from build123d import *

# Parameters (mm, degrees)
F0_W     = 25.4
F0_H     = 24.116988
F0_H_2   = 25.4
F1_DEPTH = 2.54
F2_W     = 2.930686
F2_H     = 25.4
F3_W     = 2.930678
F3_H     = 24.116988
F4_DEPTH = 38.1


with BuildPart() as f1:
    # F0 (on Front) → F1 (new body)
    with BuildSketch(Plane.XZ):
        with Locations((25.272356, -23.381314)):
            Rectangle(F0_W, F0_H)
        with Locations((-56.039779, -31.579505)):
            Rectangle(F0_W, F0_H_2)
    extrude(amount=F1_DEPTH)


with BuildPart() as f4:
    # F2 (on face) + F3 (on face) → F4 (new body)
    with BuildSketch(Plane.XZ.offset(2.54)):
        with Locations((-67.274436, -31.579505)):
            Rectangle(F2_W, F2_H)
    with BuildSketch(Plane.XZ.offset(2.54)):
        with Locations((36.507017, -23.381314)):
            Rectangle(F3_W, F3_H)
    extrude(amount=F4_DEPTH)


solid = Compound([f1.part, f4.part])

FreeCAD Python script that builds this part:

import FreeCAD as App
import Part
import Sketcher

V = App.Vector
Q = App.Units.Quantity

doc = App.newDocument("Part")
body = doc.addObject("PartDesign::Body", "Body")
body.AllowCompound = True

# Sketch on XZ plane
sketch1 = body.newObject("Sketcher::SketchObject", "Sketch")
sketch1.AttachmentSupport = (doc.getObject("XZ_Plane"), [""])
sketch1.MapMode = "FlatFace"
sketch1.addGeometry([
    Part.LineSegment(V(13, -11, 0), V(13, -35, 0)),  # 0
    Part.LineSegment(V(13, -35, 0), V(38, -35, 0)),  # 1
    Part.LineSegment(V(38, -35, 0), V(38, -11, 0)),  # 2
    Part.LineSegment(V(38, -11, 0), V(13, -11, 0)),  # 3
    Part.LineSegment(V(-69, -19, 0), V(-69, -44, 0)),  # 4
    Part.LineSegment(V(-69, -44, 0), V(-43, -44, 0)),  # 5
    Part.LineSegment(V(-43, -44, 0), V(-43, -19, 0)),  # 6
    Part.LineSegment(V(-43, -19, 0), V(-69, -19, 0)),  # 7
], False)
sketch1.addConstraint([
    Sketcher.Constraint("Coincident", 0, 2, 1, 1),
    Sketcher.Constraint("Coincident", 1, 2, 2, 1),
    Sketcher.Constraint("Coincident", 2, 2, 3, 1),
    Sketcher.Constraint("Coincident", 3, 2, 0, 1),
    Sketcher.Constraint("Coincident", 4, 2, 5, 1),
    Sketcher.Constraint("Coincident", 5, 2, 6, 1),
    Sketcher.Constraint("Coincident", 6, 2, 7, 1),
    Sketcher.Constraint("Coincident", 7, 2, 4, 1),
    Sketcher.Constraint("Vertical", 0),
    Sketcher.Constraint("Horizontal", 1),
    Sketcher.Constraint("Vertical", 2),
    Sketcher.Constraint("Horizontal", 3),
    Sketcher.Constraint("Vertical", 4),
    Sketcher.Constraint("Horizontal", 5),
    Sketcher.Constraint("Vertical", 6),
    Sketcher.Constraint("Horizontal", 7),
    Sketcher.Constraint("Equal", 3, 5),
    Sketcher.Constraint("Equal", 7, 4),
    Sketcher.Constraint("DistanceX", 1, 1, 1, 2, Q("1 in")),
    Sketcher.Constraint("DistanceY", 0, 2, 0, 1, Q("24.116988 mm")),
    Sketcher.Constraint("DistanceY", 2, 2, -1, 1, Q("11.32282 mm")),
    Sketcher.Constraint("DistanceX", 4, 2, -1, 1, Q("68.739779 mm")),
    Sketcher.Constraint("DistanceX", -1, 1, 0, 2, Q("12.572356 mm")),
    Sketcher.Constraint("DistanceY", 4, 2, -1, 1, Q("44.279505 mm")),
])
pad1 = body.newObject("PartDesign::Pad", "Pad")
pad1.Profile = sketch1
pad1.Length = Q("0.1 in")
body2 = doc.addObject("PartDesign::Body", "Body001")
body2.AllowCompound = True

# Sketch on XZ plane
sketch2 = body2.newObject("Sketcher::SketchObject", "Sketch001")
sketch2.AttachmentSupport = (doc.getObject("XZ_Plane001"), [""])
sketch2.MapMode = "FlatFace"
sketch2.AttachmentOffset = App.Placement(V(0, 0, 0.1 * 25.4), App.Rotation())
sketch2.addGeometry([
    Part.LineSegment(V(-68.7, -18.9, 0), V(-68.7, -44.3, 0)),  # 0
    Part.LineSegment(V(-68.7, -44.3, 0), V(-65.8, -44.3, 0)),  # 1
    Part.LineSegment(V(-65.8, -44.3, 0), V(-65.8, -18.9, 0)),  # 2
    Part.LineSegment(V(-65.8, -18.9, 0), V(-68.7, -18.9, 0)),  # 3
    Part.LineSegment(V(35, -11.3, 0), V(35, -35.4, 0)),  # 4
    Part.LineSegment(V(35, -35.4, 0), V(38, -35.4, 0)),  # 5
    Part.LineSegment(V(38, -35.4, 0), V(38, -11.3, 0)),  # 6
    Part.LineSegment(V(38, -11.3, 0), V(35, -11.3, 0)),  # 7
], False)
sketch2.addConstraint([
    Sketcher.Constraint("Coincident", 0, 2, 1, 1),
    Sketcher.Constraint("Coincident", 1, 2, 2, 1),
    Sketcher.Constraint("Coincident", 2, 2, 3, 1),
    Sketcher.Constraint("Coincident", 3, 2, 0, 1),
    Sketcher.Constraint("Coincident", 4, 2, 5, 1),
    Sketcher.Constraint("Coincident", 5, 2, 6, 1),
    Sketcher.Constraint("Coincident", 6, 2, 7, 1),
    Sketcher.Constraint("Coincident", 7, 2, 4, 1),
    Sketcher.Constraint("Vertical", 0),
    Sketcher.Constraint("Horizontal", 1),
    Sketcher.Constraint("Vertical", 2),
    Sketcher.Constraint("Horizontal", 3),
    Sketcher.Constraint("Vertical", 4),
    Sketcher.Constraint("Horizontal", 5),
    Sketcher.Constraint("Vertical", 6),
    Sketcher.Constraint("Horizontal", 7),
    Sketcher.Constraint("DistanceY", 0, 2, 0, 1, Q("1 in")),
    Sketcher.Constraint("DistanceX", 5, 1, 5, 2, Q("2.930678 mm")),
    Sketcher.Constraint("DistanceX", 1, 1, 1, 2, Q("2.930686 mm")),
    Sketcher.Constraint("DistanceY", 4, 2, 4, 1, Q("24.116988 mm")),
    Sketcher.Constraint("DistanceX", 0, 2, -1, 1, Q("68.739779 mm")),
    Sketcher.Constraint("DistanceY", 6, 2, -1, 1, Q("11.32282 mm")),
    Sketcher.Constraint("DistanceX", 1, 2, 4, 2, Q("100.850771 mm")),
    Sketcher.Constraint("DistanceY", 0, 2, -1, 1, Q("44.279505 mm")),
])
pad2 = body2.newObject("PartDesign::Pad", "Pad001")
pad2.Profile = sketch2
pad2.Length = Q("1.5 in")

doc.recompute()
